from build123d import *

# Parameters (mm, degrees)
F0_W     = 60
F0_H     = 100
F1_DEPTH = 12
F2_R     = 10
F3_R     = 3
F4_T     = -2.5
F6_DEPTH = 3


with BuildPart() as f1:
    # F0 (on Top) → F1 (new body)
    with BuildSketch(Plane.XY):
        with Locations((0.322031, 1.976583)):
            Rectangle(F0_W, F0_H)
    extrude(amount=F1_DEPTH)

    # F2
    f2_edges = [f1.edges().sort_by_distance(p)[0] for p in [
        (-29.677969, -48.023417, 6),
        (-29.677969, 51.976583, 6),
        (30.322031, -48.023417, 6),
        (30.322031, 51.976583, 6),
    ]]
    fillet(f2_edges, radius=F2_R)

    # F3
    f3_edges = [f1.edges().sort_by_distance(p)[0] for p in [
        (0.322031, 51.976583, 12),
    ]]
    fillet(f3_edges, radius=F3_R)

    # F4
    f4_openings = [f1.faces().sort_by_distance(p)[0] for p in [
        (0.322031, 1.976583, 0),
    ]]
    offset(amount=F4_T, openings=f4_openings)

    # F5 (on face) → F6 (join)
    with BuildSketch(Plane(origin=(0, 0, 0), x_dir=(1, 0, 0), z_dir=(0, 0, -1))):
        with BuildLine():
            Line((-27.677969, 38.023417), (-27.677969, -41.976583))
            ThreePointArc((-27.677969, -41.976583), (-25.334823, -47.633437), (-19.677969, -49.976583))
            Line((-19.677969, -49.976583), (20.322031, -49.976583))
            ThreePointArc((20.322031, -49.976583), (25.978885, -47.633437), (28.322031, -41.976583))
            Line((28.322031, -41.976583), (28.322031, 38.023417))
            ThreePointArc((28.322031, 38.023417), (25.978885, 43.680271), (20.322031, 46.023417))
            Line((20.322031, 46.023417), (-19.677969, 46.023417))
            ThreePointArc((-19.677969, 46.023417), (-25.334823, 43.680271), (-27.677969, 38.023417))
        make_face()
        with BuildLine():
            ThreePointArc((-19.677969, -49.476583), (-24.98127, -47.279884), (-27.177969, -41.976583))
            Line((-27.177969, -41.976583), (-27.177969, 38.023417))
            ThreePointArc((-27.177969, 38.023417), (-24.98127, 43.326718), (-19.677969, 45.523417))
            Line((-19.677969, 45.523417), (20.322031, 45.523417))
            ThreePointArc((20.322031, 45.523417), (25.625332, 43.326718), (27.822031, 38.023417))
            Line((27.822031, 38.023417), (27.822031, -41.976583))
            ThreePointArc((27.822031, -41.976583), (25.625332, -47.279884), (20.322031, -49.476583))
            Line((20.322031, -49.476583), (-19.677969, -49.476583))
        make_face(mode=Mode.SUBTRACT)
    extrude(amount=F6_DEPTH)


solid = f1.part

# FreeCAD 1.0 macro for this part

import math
import FreeCAD as App
import Part
import Sketcher
from FreeCAD import Vector


def edges_at(feature, points):
    """Names of the edges that pass closest to the given points."""
    edges = feature.Shape.Edges
    near = lambda p: min(range(len(edges)), key=lambda i: edges[i].distToShape(Part.Vertex(*p))[0])
    return sorted({f"Edge{near(p) + 1}" for p in points})


def faces_at(feature, points):
    """Names of the faces that lie closest to the given points."""
    faces = feature.Shape.Faces
    near = lambda p: min(range(len(faces)), key=lambda i: faces[i].distToShape(Part.Vertex(*p))[0])
    return sorted({f"Face{near(p) + 1}" for p in points})

doc = App.newDocument("Part")
params = doc.addObject("Spreadsheet::Sheet", "Params")
for row, (alias, value) in enumerate([
    ("sketch1_width", "60 mm"),
    ("sketch1_height", "100 mm"),
    ("pad1_length", "12 mm"),
    ("fillet_radius", "10 mm"),
    ("fillet2_radius", "3 mm"),
    ("thickness_wall", "2.5 mm"),
    ("sketch2_radius", "8.000001 mm"),
    ("sketch2_radius2", "7.5 mm"),
    ("sketch2_width", "40 mm"),
    ("sketch2_height", "80 mm"),
    ("pad2_length", "3 mm"),
], start=1):
    params.set(f"A{row}", alias)
    params.set(f"B{row}", "=" + value)
    params.setAlias(f"B{row}", alias)

body = doc.addObject("PartDesign::Body", "Body")

# Sketch on XY plane
sketch1 = body.newObject("Sketcher::SketchObject", "Sketch")
sketch1.AttachmentSupport = (doc.getObject("XY_Plane"), [""])
sketch1.MapMode = "FlatFace"
sketch1.addGeometry([
    Part.LineSegment(Vector(-30, 52, 0), Vector(-30, -48, 0)),
    Part.LineSegment(Vector(-30, -48, 0), Vector(30, -48, 0)),
    Part.LineSegment(Vector(30, -48, 0), Vector(30, 52, 0)),
    Part.LineSegment(Vector(30, 52, 0), Vector(-30, 52, 0)),
], False)
sketch1.addConstraint([
    Sketcher.Constraint("Coincident", 0, 2, 1, 1),
    Sketcher.Constraint("Coincident", 1, 2, 2, 1),
    Sketcher.Constraint("Coincident", 2, 2, 3, 1),
    Sketcher.Constraint("Coincident", 3, 2, 0, 1),
    Sketcher.Constraint("Vertical", 0),
    Sketcher.Constraint("Horizontal", 1),
    Sketcher.Constraint("Vertical", 2),
    Sketcher.Constraint("Horizontal", 3),
    Sketcher.Constraint("DistanceX", 1, 1, 1, 2, 60.0),
    Sketcher.Constraint("DistanceY", 0, 2, 0, 1, 100.0),
    Sketcher.Constraint("DistanceX", 0, 2, -1, 1, 29.677969),
    Sketcher.Constraint("DistanceY", 0, 2, -1, 1, 48.023417),
])
sketch1.setExpression("Constraints[8]", "Params.sketch1_width")
sketch1.setExpression("Constraints[9]", "Params.sketch1_height")
pad1 = body.newObject("PartDesign::Pad", "Pad")
pad1.Profile = sketch1
pad1.setExpression("Length", "Params.pad1_length")
doc.recompute()

fillet = body.newObject("PartDesign::Fillet", "Fillet")
fillet.Base = (pad1, edges_at(pad1, [
    (-29.678, -48.023, 6),
    (-29.678, 51.977, 6),
    (30.322, -48.023, 6),
    (30.322, 51.977, 6),
]))
fillet.setExpression("Radius", "Params.fillet_radius")
doc.recompute()

fillet2 = body.newObject("PartDesign::Fillet", "Fillet001")
fillet2.Base = (fillet, edges_at(fillet, [(0.322, 51.977, 12)]))
fillet2.setExpression("Radius", "Params.fillet2_radius")
doc.recompute()

thickness = body.newObject("PartDesign::Thickness", "Thickness")
thickness.Base = (fillet2, faces_at(fillet2, [(0.322, 1.977, 0)]))
thickness.setExpression("Value", "Params.thickness_wall")
thickness.Reversed = True
thickness.Join = "Arc"

# Sketch on XY plane
sketch2 = body.newObject("Sketcher::SketchObject", "Sketch001")
sketch2.AttachmentSupport = (doc.getObject("XY_Plane"), [""])
sketch2.MapMode = "FlatFace"
sketch2.addGeometry([
    Part.LineSegment(Vector(-28, -38, 0), Vector(-28, 42, 0)),  # 0
    Part.ArcOfCircle(Part.Circle(Vector(-20, 42, 0), Vector(0, 0, 1), 8), math.radians(90), math.radians(180)),  # 1
    Part.LineSegment(Vector(-20, 50, 0), Vector(20, 50, 0)),  # 2
    Part.ArcOfCircle(Part.Circle(Vector(20, 42, 0), Vector(0, 0, 1), 8), math.radians(0), math.radians(90)),  # 3
    Part.LineSegment(Vector(28, 42, 0), Vector(28, -38, 0)),  # 4
    Part.ArcOfCircle(Part.Circle(Vector(20, -38, 0), Vector(0, 0, 1), 8), math.radians(-90), math.radians(0)),  # 5
    Part.LineSegment(Vector(20, -46, 0), Vector(-20, -46, 0)),  # 6
    Part.ArcOfCircle(Part.Circle(Vector(-20, -38, 0), Vector(0, 0, 1), 8), math.radians(-180), math.radians(-90)),  # 7
    Part.LineSegment(Vector(20, 49, 0), Vector(-20, 49, 0)),  # 8
    Part.ArcOfCircle(Part.Circle(Vector(-20, 42, 0), Vector(0, 0, 1), 7), math.radians(90), math.radians(180)),  # 9
    Part.LineSegment(Vector(-27, 42, 0), Vector(-27, -38, 0)),  # 10
    Part.ArcOfCircle(Part.Circle(Vector(-20, -38, 0), Vector(0, 0, 1), 7), math.radians(180), math.radians(270)),  # 11
    Part.LineSegment(Vector(-20, -46, 0), Vector(20, -46, 0)),  # 12
    Part.ArcOfCircle(Part.Circle(Vector(20, -38, 0), Vector(0, 0, 1), 7), math.radians(-90), math.radians(0)),  # 13
    Part.LineSegment(Vector(28, -38, 0), Vector(28, 42, 0)),  # 14
    Part.ArcOfCircle(Part.Circle(Vector(20, 42, 0), Vector(0, 0, 1), 7), math.radians(0), math.radians(90)),  # 15
], False)
sketch2.addConstraint([
    Sketcher.Constraint("Tangent", 0, 2, 1, 2),
    Sketcher.Constraint("Tangent", 1, 1, 2, 1),
    Sketcher.Constraint("Tangent", 2, 2, 3, 2),
    Sketcher.Constraint("Tangent", 3, 1, 4, 1),
    Sketcher.Constraint("Tangent", 4, 2, 5, 2),
    Sketcher.Constraint("Tangent", 5, 1, 6, 1),
    Sketcher.Constraint("Tangent", 6, 2, 7, 2),
    Sketcher.Constraint("Tangent", 7, 1, 0, 1),
    Sketcher.Constraint("Tangent", 8, 2, 9, 1),
    Sketcher.Constraint("Tangent", 9, 2, 10, 1),
    Sketcher.Constraint("Tangent", 10, 2, 11, 1),
    Sketcher.Constraint("Tangent", 11, 2, 12, 1),
    Sketcher.Constraint("Tangent", 12, 2, 13, 1),
    Sketcher.Constraint("Tangent", 13, 2, 14, 1),
    Sketcher.Constraint("Tangent", 14, 2, 15, 1),
    Sketcher.Constraint("Tangent", 15, 2, 8, 1),
    Sketcher.Constraint("Vertical", 0),
    Sketcher.Constraint("Horizontal", 2),
    Sketcher.Constraint("Vertical", 4),
    Sketcher.Constraint("Horizontal", 6),
    Sketcher.Constraint("Horizontal", 8),
    Sketcher.Constraint("Vertical", 10),
    Sketcher.Constraint("Horizontal", 12),
    Sketcher.Constraint("Vertical", 14),
    Sketcher.Constraint("Coincident", 9, 3, 1, 3),
    Sketcher.Constraint("Coincident", 11, 3, 7, 3),
    Sketcher.Constraint("Coincident", 13, 3, 5, 3),
    Sketcher.Constraint("Equal", 1, 3),
    Sketcher.Constraint("Equal", 3, 5),
    Sketcher.Constraint("Equal", 5, 7),
    Sketcher.Constraint("Equal", 13, 15),
    Sketcher.Constraint("Radius", 1, 8.000001),
    Sketcher.Constraint("Radius", 9, 7.5),
    Sketcher.Constraint("DistanceX", 2, 1, 2, 2, 40.0),
    Sketcher.Constraint("DistanceY", 0, 1, 0, 2, 80.0),
    Sketcher.Constraint("DistanceX", 1, 3, -1, 1, 19.677968),
    Sketcher.Constraint("DistanceY", -1, 1, 1, 3, 41.976582),
])
sketch2.setExpression("Constraints[31]", "Params.sketch2_radius")
sketch2.setExpression("Constraints[32]", "Params.sketch2_radius2")
sketch2.setExpression("Constraints[33]", "Params.sketch2_width")
sketch2.setExpression("Constraints[34]", "Params.sketch2_height")
pad2 = body.newObject("PartDesign::Pad", "Pad001")
pad2.Profile = sketch2
pad2.setExpression("Length", "Params.pad2_length")
pad2.Reversed = True

doc.recompute()
